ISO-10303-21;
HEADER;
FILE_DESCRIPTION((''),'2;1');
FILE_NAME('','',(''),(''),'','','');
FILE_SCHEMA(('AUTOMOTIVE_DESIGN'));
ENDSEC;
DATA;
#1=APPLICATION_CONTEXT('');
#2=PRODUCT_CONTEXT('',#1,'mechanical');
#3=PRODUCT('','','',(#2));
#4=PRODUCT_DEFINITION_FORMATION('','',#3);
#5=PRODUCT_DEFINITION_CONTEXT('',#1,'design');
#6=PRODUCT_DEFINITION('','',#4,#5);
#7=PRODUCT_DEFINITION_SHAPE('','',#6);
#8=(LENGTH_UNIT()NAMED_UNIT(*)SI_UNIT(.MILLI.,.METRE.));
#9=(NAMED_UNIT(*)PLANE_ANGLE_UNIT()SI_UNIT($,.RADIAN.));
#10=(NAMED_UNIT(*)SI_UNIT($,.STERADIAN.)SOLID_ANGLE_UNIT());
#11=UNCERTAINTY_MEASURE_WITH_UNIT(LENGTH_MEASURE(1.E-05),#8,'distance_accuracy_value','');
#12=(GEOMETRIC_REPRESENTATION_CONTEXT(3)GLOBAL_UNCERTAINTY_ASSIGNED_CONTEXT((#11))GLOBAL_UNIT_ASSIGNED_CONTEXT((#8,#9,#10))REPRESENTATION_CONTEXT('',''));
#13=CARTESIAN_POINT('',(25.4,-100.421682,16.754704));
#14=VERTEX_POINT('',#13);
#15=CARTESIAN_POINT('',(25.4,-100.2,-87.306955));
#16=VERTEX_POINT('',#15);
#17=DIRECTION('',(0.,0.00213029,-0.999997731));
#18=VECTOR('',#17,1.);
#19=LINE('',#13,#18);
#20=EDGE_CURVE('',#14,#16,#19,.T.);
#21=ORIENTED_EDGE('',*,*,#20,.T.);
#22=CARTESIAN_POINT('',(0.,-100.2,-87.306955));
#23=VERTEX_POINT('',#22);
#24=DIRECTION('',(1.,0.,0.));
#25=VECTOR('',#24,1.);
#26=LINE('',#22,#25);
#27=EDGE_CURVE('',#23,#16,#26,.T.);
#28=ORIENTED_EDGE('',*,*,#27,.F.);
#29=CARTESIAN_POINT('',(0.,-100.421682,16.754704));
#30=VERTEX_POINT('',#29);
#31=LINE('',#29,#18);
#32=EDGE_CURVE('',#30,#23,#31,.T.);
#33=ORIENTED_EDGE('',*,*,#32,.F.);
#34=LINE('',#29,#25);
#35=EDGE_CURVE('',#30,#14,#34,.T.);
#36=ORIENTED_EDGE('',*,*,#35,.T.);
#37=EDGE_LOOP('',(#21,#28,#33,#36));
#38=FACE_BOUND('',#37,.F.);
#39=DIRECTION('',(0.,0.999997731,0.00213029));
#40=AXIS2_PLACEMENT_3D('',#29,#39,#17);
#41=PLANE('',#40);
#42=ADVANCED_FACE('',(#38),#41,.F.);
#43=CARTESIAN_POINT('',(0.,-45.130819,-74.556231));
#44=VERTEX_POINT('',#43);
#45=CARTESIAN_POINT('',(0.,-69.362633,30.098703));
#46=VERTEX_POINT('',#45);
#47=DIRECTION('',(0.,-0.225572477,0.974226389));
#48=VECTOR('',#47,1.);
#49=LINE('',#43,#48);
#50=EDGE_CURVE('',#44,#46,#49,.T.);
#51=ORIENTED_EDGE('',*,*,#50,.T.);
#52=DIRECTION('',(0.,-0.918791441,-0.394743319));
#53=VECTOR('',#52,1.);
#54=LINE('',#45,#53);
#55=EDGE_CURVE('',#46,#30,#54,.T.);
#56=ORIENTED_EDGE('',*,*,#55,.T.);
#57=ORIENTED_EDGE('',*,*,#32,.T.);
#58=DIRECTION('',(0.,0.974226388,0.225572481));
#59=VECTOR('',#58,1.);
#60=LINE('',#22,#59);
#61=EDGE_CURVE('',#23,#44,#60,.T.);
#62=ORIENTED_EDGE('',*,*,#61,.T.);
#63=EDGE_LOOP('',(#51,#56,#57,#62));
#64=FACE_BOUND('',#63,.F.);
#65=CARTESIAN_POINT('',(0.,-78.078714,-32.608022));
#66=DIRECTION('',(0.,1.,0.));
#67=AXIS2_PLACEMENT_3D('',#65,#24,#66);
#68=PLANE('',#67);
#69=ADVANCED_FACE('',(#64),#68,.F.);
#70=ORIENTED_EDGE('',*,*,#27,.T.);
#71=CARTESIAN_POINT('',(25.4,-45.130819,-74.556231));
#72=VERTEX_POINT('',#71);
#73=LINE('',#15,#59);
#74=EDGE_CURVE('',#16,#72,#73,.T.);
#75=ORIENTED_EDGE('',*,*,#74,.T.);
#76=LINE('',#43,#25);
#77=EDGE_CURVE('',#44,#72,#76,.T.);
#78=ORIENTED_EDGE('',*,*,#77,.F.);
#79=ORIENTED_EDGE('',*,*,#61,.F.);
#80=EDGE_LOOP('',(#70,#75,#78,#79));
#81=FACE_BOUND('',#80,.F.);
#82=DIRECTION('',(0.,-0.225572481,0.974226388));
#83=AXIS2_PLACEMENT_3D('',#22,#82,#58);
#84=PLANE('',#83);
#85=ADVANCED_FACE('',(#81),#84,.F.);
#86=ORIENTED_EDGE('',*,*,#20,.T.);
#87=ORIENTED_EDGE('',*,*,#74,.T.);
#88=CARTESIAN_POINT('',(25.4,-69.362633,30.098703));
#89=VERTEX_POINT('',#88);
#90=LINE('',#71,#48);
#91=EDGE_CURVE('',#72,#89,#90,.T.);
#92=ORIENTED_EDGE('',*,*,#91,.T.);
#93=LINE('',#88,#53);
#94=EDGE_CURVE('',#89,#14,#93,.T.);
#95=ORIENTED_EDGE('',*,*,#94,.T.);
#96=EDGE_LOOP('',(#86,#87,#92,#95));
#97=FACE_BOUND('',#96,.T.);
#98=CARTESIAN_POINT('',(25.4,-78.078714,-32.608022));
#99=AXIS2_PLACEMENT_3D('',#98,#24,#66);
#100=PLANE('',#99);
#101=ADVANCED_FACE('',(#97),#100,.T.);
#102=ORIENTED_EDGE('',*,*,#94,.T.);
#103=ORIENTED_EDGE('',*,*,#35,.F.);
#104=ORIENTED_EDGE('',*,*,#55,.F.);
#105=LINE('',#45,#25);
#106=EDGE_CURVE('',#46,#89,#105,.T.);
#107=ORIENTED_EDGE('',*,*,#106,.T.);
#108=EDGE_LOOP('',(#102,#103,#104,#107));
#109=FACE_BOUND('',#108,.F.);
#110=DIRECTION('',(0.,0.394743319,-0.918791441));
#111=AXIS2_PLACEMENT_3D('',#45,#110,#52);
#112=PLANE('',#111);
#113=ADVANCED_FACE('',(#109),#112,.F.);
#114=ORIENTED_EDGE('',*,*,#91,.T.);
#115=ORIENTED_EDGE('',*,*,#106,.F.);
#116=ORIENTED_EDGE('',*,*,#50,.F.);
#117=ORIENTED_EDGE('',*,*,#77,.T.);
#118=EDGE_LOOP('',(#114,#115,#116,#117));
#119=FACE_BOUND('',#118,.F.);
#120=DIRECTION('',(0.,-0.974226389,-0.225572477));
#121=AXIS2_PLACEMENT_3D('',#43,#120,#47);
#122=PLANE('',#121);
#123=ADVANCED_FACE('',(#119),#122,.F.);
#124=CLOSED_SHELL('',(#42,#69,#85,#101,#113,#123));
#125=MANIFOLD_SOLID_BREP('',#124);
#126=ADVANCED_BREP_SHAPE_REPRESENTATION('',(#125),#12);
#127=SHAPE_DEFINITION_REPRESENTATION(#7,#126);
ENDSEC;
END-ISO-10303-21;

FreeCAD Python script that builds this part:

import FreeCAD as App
import Part
import Sketcher

V = App.Vector
Q = App.Units.Quantity


def add_polygon(sketch, points):
    """Adds a closed chain of lines whose ends are joined by coincident constraints."""
    first, n = sketch.GeometryCount, len(points)
    for a, b in zip(points, points[1:] + points[:1]):
        sketch.addGeometry(Part.LineSegment(App.Vector(*a, 0), App.Vector(*b, 0)), False)
    for i in range(n):
        sketch.addConstraint(Sketcher.Constraint("Coincident", first + i, 2, first + (i + 1) % n, 1))

doc = App.newDocument("Part")
body = doc.addObject("PartDesign::Body", "Body")

sketch1 = doc.addObject("Sketcher::SketchObject", "Sketch")
body.addObject(sketch1)
sketch1.AttachmentSupport = (doc.YZ_Plane, [""])
sketch1.MapMode = "FlatFace"
add_polygon(sketch1, [(-69, 30), (-100, 17), (-100, -87), (-45, -75)])
sketch1.addConstraint(Sketcher.Constraint("Perpendicular", 2, 3))
sketch1.addConstraint(Sketcher.Constraint("DistanceX", 1, 2, -1, 1, 100.2))
sketch1.addConstraint(Sketcher.Constraint("DistanceY", 0, 2, 3, 2, 13.343999))
sketch1.addConstraint(Sketcher.Constraint("Distance", 2, 56.526062))
sketch1.addConstraint(Sketcher.Constraint("Distance", 3, 107.423629))
sketch1.addConstraint(Sketcher.Constraint("DistanceX", 2, 2, -1, 1, 45.130819))
sketch1.addConstraint(Sketcher.Constraint("DistanceY", 2, 2, -1, 1, 74.556231))
sketch1.addConstraint(Sketcher.Constraint("DistanceX", 0, 2, 3, 2, 31.059049))
pad1 = doc.addObject("PartDesign::Pad", "Pad")
body.addObject(pad1)
pad1.Profile = sketch1
pad1.Length = Q("1 in")

doc.recompute()
